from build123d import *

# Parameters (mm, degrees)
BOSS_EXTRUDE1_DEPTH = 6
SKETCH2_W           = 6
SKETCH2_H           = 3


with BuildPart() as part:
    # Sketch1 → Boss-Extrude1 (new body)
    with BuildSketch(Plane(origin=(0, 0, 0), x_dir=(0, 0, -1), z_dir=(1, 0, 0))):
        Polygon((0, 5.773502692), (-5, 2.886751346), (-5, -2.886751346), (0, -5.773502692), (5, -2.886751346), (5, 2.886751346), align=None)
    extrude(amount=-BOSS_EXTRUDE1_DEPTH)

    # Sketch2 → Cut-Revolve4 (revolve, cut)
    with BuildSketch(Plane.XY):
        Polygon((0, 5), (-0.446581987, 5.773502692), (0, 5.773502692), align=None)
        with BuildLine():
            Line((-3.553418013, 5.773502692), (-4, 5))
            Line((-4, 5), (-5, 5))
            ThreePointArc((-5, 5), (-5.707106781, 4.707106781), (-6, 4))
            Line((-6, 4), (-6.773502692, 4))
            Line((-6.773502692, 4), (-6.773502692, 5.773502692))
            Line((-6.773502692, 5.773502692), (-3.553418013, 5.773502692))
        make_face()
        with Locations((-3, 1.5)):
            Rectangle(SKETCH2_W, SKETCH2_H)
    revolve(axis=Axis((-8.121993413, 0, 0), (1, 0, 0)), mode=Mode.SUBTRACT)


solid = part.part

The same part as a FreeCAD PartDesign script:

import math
import FreeCAD as App
import Part
import Sketcher
Q = App.Units.Quantity


def add_polygon(sketch, points):
    """Adds a closed chain of lines whose ends are joined by coincident constraints."""
    first, n = sketch.GeometryCount, len(points)
    for a, b in zip(points, points[1:] + points[:1]):
        sketch.addGeometry(Part.LineSegment(App.Vector(*a, 0), App.Vector(*b, 0)), False)
    for i in range(n):
        sketch.addConstraint(Sketcher.Constraint("Coincident", first + i, 2, first + (i + 1) % n, 1))

doc = App.newDocument("Part")
body = doc.addObject("PartDesign::Body", "Body")

# Sketch on YZ plane
sketch1 = doc.addObject("Sketcher::SketchObject", "Sketch")
body.addObject(sketch1)
sketch1.AttachmentSupport = (doc.YZ_Plane, [""])
sketch1.MapMode = "FlatFace"
add_polygon(sketch1, [(6, 0), (3, 5), (-3, 5), (-6, 0), (-3, -5), (3, -5)])  # lines 0-5
sketch1.addConstraint([
    Sketcher.Constraint("Horizontal", 1),
    Sketcher.Constraint("Horizontal", 4),
    Sketcher.Constraint("Symmetric", 0, 2, 3, 2, -1, 1),
    Sketcher.Constraint("Symmetric", 2, 2, 5, 2, -1, 1),
    Sketcher.Constraint("PointOnObject", 2, 2, -1),
    Sketcher.Constraint("Parallel", 2, 5),
    Sketcher.Constraint("Vertical", 1, 2, 3, 2),
    Sketcher.Constraint("Angle", 0, Q("120 deg")),
    Sketcher.Constraint("DistanceY", -1, 1, 0, 2, Q("5 mm")),
    Sketcher.Constraint("DistanceX", 1, 2, 1, 1, Q("5.773503 mm")),
])
pad1 = doc.addObject("PartDesign::Pad", "Pad")
body.addObject(pad1)
pad1.Profile = sketch1
pad1.Length = 6
pad1.Reversed = True

# Sketch on XY plane
sketch2 = doc.addObject("Sketcher::SketchObject", "Sketch001")
body.addObject(sketch2)
sketch2.AttachmentSupport = (doc.XY_Plane, [""])
sketch2.MapMode = "FlatFace"
add_polygon(sketch2, [(-0.45, 5.77), (0, 5), (0, 5.77)])  # lines 0-2
sketch2.addGeometry(Part.LineSegment(App.Vector(-4, 5, 0), App.Vector(-3.55, 5.77, 0)), False)  # 3
sketch2.addGeometry(Part.LineSegment(App.Vector(-3.55, 5.77, 0), App.Vector(-6.77, 5.77, 0)), False)  # 4
sketch2.addGeometry(Part.LineSegment(App.Vector(-6.77, 5.77, 0), App.Vector(-6.77, 4, 0)), False)  # 5
sketch2.addGeometry(Part.LineSegment(App.Vector(-6.77, 4, 0), App.Vector(-6, 4, 0)), False)  # 6
sketch2.addGeometry(Part.ArcOfCircle(Part.Circle(App.Vector(-5, 4, 0), App.Vector(0, 0, 1), 1), math.radians(90), math.radians(180)), False)  # 7
sketch2.addGeometry(Part.LineSegment(App.Vector(-5, 5, 0), App.Vector(-4, 5, 0)), False)  # 8
add_polygon(sketch2, [(-6, 3), (-6, 0), (0, 0), (0, 3)])  # lines 9-12
sketch2.addConstraint([
    Sketcher.Constraint("Coincident", 3, 2, 4, 1),
    Sketcher.Constraint("Coincident", 4, 2, 5, 1),
    Sketcher.Constraint("Coincident", 5, 2, 6, 1),
    Sketcher.Constraint("Coincident", 6, 2, 7, 2),
    Sketcher.Constraint("Tangent", 7, 1, 8, 1),
    Sketcher.Constraint("Coincident", 8, 2, 3, 1),
    Sketcher.Constraint("Vertical", 1),
    Sketcher.Constraint("Horizontal", 2),
    Sketcher.Constraint("Horizontal", 4),
    Sketcher.Constraint("Vertical", 5),
    Sketcher.Constraint("Horizontal", 6),
    Sketcher.Constraint("Horizontal", 8),
    Sketcher.Constraint("Vertical", 9),
    Sketcher.Constraint("Horizontal", 10),
    Sketcher.Constraint("Vertical", 11),
    Sketcher.Constraint("Horizontal", 12),
    Sketcher.Constraint("Coincident", 10, 2, -1, 1),
    Sketcher.Constraint("PointOnObject", 0, 2, -2),
    Sketcher.Constraint("Horizontal", 2, 2, 3, 2),
    Sketcher.Constraint("Horizontal", 7, 3, 5, 2),
    Sketcher.Constraint("Horizontal", 0, 2, 7, 1),
    Sketcher.Constraint("Vertical", 6, 2, 9, 2),
    Sketcher.Constraint("Equal", 6, 1),
    Sketcher.Constraint("Equal", 0, 3),
    Sketcher.Constraint("Radius", 7, Q("1 mm")),
    Sketcher.Constraint("DistanceX", 8, 1, 8, 2, Q("1 mm")),
    Sketcher.Constraint("DistanceX", 10, 1, 10, 2, Q("6 mm")),
    Sketcher.Constraint("DistanceY", 9, 2, 9, 1, Q("3 mm")),
    Sketcher.Constraint("Angle", 0, Q("-60 deg")),
    Sketcher.Constraint("DistanceY", -1, 1, 7, 3, Q("4 mm")),
    Sketcher.Constraint("DistanceX", 2, 2, 2, 1, Q("0.446582 mm")),
])
groove = doc.addObject("PartDesign::Groove", "Groove")
body.addObject(groove)
groove.Profile = sketch2
groove.ReferenceAxis = (sketch2, ["H_Axis"])
groove.Angle = 360

doc.recompute()
